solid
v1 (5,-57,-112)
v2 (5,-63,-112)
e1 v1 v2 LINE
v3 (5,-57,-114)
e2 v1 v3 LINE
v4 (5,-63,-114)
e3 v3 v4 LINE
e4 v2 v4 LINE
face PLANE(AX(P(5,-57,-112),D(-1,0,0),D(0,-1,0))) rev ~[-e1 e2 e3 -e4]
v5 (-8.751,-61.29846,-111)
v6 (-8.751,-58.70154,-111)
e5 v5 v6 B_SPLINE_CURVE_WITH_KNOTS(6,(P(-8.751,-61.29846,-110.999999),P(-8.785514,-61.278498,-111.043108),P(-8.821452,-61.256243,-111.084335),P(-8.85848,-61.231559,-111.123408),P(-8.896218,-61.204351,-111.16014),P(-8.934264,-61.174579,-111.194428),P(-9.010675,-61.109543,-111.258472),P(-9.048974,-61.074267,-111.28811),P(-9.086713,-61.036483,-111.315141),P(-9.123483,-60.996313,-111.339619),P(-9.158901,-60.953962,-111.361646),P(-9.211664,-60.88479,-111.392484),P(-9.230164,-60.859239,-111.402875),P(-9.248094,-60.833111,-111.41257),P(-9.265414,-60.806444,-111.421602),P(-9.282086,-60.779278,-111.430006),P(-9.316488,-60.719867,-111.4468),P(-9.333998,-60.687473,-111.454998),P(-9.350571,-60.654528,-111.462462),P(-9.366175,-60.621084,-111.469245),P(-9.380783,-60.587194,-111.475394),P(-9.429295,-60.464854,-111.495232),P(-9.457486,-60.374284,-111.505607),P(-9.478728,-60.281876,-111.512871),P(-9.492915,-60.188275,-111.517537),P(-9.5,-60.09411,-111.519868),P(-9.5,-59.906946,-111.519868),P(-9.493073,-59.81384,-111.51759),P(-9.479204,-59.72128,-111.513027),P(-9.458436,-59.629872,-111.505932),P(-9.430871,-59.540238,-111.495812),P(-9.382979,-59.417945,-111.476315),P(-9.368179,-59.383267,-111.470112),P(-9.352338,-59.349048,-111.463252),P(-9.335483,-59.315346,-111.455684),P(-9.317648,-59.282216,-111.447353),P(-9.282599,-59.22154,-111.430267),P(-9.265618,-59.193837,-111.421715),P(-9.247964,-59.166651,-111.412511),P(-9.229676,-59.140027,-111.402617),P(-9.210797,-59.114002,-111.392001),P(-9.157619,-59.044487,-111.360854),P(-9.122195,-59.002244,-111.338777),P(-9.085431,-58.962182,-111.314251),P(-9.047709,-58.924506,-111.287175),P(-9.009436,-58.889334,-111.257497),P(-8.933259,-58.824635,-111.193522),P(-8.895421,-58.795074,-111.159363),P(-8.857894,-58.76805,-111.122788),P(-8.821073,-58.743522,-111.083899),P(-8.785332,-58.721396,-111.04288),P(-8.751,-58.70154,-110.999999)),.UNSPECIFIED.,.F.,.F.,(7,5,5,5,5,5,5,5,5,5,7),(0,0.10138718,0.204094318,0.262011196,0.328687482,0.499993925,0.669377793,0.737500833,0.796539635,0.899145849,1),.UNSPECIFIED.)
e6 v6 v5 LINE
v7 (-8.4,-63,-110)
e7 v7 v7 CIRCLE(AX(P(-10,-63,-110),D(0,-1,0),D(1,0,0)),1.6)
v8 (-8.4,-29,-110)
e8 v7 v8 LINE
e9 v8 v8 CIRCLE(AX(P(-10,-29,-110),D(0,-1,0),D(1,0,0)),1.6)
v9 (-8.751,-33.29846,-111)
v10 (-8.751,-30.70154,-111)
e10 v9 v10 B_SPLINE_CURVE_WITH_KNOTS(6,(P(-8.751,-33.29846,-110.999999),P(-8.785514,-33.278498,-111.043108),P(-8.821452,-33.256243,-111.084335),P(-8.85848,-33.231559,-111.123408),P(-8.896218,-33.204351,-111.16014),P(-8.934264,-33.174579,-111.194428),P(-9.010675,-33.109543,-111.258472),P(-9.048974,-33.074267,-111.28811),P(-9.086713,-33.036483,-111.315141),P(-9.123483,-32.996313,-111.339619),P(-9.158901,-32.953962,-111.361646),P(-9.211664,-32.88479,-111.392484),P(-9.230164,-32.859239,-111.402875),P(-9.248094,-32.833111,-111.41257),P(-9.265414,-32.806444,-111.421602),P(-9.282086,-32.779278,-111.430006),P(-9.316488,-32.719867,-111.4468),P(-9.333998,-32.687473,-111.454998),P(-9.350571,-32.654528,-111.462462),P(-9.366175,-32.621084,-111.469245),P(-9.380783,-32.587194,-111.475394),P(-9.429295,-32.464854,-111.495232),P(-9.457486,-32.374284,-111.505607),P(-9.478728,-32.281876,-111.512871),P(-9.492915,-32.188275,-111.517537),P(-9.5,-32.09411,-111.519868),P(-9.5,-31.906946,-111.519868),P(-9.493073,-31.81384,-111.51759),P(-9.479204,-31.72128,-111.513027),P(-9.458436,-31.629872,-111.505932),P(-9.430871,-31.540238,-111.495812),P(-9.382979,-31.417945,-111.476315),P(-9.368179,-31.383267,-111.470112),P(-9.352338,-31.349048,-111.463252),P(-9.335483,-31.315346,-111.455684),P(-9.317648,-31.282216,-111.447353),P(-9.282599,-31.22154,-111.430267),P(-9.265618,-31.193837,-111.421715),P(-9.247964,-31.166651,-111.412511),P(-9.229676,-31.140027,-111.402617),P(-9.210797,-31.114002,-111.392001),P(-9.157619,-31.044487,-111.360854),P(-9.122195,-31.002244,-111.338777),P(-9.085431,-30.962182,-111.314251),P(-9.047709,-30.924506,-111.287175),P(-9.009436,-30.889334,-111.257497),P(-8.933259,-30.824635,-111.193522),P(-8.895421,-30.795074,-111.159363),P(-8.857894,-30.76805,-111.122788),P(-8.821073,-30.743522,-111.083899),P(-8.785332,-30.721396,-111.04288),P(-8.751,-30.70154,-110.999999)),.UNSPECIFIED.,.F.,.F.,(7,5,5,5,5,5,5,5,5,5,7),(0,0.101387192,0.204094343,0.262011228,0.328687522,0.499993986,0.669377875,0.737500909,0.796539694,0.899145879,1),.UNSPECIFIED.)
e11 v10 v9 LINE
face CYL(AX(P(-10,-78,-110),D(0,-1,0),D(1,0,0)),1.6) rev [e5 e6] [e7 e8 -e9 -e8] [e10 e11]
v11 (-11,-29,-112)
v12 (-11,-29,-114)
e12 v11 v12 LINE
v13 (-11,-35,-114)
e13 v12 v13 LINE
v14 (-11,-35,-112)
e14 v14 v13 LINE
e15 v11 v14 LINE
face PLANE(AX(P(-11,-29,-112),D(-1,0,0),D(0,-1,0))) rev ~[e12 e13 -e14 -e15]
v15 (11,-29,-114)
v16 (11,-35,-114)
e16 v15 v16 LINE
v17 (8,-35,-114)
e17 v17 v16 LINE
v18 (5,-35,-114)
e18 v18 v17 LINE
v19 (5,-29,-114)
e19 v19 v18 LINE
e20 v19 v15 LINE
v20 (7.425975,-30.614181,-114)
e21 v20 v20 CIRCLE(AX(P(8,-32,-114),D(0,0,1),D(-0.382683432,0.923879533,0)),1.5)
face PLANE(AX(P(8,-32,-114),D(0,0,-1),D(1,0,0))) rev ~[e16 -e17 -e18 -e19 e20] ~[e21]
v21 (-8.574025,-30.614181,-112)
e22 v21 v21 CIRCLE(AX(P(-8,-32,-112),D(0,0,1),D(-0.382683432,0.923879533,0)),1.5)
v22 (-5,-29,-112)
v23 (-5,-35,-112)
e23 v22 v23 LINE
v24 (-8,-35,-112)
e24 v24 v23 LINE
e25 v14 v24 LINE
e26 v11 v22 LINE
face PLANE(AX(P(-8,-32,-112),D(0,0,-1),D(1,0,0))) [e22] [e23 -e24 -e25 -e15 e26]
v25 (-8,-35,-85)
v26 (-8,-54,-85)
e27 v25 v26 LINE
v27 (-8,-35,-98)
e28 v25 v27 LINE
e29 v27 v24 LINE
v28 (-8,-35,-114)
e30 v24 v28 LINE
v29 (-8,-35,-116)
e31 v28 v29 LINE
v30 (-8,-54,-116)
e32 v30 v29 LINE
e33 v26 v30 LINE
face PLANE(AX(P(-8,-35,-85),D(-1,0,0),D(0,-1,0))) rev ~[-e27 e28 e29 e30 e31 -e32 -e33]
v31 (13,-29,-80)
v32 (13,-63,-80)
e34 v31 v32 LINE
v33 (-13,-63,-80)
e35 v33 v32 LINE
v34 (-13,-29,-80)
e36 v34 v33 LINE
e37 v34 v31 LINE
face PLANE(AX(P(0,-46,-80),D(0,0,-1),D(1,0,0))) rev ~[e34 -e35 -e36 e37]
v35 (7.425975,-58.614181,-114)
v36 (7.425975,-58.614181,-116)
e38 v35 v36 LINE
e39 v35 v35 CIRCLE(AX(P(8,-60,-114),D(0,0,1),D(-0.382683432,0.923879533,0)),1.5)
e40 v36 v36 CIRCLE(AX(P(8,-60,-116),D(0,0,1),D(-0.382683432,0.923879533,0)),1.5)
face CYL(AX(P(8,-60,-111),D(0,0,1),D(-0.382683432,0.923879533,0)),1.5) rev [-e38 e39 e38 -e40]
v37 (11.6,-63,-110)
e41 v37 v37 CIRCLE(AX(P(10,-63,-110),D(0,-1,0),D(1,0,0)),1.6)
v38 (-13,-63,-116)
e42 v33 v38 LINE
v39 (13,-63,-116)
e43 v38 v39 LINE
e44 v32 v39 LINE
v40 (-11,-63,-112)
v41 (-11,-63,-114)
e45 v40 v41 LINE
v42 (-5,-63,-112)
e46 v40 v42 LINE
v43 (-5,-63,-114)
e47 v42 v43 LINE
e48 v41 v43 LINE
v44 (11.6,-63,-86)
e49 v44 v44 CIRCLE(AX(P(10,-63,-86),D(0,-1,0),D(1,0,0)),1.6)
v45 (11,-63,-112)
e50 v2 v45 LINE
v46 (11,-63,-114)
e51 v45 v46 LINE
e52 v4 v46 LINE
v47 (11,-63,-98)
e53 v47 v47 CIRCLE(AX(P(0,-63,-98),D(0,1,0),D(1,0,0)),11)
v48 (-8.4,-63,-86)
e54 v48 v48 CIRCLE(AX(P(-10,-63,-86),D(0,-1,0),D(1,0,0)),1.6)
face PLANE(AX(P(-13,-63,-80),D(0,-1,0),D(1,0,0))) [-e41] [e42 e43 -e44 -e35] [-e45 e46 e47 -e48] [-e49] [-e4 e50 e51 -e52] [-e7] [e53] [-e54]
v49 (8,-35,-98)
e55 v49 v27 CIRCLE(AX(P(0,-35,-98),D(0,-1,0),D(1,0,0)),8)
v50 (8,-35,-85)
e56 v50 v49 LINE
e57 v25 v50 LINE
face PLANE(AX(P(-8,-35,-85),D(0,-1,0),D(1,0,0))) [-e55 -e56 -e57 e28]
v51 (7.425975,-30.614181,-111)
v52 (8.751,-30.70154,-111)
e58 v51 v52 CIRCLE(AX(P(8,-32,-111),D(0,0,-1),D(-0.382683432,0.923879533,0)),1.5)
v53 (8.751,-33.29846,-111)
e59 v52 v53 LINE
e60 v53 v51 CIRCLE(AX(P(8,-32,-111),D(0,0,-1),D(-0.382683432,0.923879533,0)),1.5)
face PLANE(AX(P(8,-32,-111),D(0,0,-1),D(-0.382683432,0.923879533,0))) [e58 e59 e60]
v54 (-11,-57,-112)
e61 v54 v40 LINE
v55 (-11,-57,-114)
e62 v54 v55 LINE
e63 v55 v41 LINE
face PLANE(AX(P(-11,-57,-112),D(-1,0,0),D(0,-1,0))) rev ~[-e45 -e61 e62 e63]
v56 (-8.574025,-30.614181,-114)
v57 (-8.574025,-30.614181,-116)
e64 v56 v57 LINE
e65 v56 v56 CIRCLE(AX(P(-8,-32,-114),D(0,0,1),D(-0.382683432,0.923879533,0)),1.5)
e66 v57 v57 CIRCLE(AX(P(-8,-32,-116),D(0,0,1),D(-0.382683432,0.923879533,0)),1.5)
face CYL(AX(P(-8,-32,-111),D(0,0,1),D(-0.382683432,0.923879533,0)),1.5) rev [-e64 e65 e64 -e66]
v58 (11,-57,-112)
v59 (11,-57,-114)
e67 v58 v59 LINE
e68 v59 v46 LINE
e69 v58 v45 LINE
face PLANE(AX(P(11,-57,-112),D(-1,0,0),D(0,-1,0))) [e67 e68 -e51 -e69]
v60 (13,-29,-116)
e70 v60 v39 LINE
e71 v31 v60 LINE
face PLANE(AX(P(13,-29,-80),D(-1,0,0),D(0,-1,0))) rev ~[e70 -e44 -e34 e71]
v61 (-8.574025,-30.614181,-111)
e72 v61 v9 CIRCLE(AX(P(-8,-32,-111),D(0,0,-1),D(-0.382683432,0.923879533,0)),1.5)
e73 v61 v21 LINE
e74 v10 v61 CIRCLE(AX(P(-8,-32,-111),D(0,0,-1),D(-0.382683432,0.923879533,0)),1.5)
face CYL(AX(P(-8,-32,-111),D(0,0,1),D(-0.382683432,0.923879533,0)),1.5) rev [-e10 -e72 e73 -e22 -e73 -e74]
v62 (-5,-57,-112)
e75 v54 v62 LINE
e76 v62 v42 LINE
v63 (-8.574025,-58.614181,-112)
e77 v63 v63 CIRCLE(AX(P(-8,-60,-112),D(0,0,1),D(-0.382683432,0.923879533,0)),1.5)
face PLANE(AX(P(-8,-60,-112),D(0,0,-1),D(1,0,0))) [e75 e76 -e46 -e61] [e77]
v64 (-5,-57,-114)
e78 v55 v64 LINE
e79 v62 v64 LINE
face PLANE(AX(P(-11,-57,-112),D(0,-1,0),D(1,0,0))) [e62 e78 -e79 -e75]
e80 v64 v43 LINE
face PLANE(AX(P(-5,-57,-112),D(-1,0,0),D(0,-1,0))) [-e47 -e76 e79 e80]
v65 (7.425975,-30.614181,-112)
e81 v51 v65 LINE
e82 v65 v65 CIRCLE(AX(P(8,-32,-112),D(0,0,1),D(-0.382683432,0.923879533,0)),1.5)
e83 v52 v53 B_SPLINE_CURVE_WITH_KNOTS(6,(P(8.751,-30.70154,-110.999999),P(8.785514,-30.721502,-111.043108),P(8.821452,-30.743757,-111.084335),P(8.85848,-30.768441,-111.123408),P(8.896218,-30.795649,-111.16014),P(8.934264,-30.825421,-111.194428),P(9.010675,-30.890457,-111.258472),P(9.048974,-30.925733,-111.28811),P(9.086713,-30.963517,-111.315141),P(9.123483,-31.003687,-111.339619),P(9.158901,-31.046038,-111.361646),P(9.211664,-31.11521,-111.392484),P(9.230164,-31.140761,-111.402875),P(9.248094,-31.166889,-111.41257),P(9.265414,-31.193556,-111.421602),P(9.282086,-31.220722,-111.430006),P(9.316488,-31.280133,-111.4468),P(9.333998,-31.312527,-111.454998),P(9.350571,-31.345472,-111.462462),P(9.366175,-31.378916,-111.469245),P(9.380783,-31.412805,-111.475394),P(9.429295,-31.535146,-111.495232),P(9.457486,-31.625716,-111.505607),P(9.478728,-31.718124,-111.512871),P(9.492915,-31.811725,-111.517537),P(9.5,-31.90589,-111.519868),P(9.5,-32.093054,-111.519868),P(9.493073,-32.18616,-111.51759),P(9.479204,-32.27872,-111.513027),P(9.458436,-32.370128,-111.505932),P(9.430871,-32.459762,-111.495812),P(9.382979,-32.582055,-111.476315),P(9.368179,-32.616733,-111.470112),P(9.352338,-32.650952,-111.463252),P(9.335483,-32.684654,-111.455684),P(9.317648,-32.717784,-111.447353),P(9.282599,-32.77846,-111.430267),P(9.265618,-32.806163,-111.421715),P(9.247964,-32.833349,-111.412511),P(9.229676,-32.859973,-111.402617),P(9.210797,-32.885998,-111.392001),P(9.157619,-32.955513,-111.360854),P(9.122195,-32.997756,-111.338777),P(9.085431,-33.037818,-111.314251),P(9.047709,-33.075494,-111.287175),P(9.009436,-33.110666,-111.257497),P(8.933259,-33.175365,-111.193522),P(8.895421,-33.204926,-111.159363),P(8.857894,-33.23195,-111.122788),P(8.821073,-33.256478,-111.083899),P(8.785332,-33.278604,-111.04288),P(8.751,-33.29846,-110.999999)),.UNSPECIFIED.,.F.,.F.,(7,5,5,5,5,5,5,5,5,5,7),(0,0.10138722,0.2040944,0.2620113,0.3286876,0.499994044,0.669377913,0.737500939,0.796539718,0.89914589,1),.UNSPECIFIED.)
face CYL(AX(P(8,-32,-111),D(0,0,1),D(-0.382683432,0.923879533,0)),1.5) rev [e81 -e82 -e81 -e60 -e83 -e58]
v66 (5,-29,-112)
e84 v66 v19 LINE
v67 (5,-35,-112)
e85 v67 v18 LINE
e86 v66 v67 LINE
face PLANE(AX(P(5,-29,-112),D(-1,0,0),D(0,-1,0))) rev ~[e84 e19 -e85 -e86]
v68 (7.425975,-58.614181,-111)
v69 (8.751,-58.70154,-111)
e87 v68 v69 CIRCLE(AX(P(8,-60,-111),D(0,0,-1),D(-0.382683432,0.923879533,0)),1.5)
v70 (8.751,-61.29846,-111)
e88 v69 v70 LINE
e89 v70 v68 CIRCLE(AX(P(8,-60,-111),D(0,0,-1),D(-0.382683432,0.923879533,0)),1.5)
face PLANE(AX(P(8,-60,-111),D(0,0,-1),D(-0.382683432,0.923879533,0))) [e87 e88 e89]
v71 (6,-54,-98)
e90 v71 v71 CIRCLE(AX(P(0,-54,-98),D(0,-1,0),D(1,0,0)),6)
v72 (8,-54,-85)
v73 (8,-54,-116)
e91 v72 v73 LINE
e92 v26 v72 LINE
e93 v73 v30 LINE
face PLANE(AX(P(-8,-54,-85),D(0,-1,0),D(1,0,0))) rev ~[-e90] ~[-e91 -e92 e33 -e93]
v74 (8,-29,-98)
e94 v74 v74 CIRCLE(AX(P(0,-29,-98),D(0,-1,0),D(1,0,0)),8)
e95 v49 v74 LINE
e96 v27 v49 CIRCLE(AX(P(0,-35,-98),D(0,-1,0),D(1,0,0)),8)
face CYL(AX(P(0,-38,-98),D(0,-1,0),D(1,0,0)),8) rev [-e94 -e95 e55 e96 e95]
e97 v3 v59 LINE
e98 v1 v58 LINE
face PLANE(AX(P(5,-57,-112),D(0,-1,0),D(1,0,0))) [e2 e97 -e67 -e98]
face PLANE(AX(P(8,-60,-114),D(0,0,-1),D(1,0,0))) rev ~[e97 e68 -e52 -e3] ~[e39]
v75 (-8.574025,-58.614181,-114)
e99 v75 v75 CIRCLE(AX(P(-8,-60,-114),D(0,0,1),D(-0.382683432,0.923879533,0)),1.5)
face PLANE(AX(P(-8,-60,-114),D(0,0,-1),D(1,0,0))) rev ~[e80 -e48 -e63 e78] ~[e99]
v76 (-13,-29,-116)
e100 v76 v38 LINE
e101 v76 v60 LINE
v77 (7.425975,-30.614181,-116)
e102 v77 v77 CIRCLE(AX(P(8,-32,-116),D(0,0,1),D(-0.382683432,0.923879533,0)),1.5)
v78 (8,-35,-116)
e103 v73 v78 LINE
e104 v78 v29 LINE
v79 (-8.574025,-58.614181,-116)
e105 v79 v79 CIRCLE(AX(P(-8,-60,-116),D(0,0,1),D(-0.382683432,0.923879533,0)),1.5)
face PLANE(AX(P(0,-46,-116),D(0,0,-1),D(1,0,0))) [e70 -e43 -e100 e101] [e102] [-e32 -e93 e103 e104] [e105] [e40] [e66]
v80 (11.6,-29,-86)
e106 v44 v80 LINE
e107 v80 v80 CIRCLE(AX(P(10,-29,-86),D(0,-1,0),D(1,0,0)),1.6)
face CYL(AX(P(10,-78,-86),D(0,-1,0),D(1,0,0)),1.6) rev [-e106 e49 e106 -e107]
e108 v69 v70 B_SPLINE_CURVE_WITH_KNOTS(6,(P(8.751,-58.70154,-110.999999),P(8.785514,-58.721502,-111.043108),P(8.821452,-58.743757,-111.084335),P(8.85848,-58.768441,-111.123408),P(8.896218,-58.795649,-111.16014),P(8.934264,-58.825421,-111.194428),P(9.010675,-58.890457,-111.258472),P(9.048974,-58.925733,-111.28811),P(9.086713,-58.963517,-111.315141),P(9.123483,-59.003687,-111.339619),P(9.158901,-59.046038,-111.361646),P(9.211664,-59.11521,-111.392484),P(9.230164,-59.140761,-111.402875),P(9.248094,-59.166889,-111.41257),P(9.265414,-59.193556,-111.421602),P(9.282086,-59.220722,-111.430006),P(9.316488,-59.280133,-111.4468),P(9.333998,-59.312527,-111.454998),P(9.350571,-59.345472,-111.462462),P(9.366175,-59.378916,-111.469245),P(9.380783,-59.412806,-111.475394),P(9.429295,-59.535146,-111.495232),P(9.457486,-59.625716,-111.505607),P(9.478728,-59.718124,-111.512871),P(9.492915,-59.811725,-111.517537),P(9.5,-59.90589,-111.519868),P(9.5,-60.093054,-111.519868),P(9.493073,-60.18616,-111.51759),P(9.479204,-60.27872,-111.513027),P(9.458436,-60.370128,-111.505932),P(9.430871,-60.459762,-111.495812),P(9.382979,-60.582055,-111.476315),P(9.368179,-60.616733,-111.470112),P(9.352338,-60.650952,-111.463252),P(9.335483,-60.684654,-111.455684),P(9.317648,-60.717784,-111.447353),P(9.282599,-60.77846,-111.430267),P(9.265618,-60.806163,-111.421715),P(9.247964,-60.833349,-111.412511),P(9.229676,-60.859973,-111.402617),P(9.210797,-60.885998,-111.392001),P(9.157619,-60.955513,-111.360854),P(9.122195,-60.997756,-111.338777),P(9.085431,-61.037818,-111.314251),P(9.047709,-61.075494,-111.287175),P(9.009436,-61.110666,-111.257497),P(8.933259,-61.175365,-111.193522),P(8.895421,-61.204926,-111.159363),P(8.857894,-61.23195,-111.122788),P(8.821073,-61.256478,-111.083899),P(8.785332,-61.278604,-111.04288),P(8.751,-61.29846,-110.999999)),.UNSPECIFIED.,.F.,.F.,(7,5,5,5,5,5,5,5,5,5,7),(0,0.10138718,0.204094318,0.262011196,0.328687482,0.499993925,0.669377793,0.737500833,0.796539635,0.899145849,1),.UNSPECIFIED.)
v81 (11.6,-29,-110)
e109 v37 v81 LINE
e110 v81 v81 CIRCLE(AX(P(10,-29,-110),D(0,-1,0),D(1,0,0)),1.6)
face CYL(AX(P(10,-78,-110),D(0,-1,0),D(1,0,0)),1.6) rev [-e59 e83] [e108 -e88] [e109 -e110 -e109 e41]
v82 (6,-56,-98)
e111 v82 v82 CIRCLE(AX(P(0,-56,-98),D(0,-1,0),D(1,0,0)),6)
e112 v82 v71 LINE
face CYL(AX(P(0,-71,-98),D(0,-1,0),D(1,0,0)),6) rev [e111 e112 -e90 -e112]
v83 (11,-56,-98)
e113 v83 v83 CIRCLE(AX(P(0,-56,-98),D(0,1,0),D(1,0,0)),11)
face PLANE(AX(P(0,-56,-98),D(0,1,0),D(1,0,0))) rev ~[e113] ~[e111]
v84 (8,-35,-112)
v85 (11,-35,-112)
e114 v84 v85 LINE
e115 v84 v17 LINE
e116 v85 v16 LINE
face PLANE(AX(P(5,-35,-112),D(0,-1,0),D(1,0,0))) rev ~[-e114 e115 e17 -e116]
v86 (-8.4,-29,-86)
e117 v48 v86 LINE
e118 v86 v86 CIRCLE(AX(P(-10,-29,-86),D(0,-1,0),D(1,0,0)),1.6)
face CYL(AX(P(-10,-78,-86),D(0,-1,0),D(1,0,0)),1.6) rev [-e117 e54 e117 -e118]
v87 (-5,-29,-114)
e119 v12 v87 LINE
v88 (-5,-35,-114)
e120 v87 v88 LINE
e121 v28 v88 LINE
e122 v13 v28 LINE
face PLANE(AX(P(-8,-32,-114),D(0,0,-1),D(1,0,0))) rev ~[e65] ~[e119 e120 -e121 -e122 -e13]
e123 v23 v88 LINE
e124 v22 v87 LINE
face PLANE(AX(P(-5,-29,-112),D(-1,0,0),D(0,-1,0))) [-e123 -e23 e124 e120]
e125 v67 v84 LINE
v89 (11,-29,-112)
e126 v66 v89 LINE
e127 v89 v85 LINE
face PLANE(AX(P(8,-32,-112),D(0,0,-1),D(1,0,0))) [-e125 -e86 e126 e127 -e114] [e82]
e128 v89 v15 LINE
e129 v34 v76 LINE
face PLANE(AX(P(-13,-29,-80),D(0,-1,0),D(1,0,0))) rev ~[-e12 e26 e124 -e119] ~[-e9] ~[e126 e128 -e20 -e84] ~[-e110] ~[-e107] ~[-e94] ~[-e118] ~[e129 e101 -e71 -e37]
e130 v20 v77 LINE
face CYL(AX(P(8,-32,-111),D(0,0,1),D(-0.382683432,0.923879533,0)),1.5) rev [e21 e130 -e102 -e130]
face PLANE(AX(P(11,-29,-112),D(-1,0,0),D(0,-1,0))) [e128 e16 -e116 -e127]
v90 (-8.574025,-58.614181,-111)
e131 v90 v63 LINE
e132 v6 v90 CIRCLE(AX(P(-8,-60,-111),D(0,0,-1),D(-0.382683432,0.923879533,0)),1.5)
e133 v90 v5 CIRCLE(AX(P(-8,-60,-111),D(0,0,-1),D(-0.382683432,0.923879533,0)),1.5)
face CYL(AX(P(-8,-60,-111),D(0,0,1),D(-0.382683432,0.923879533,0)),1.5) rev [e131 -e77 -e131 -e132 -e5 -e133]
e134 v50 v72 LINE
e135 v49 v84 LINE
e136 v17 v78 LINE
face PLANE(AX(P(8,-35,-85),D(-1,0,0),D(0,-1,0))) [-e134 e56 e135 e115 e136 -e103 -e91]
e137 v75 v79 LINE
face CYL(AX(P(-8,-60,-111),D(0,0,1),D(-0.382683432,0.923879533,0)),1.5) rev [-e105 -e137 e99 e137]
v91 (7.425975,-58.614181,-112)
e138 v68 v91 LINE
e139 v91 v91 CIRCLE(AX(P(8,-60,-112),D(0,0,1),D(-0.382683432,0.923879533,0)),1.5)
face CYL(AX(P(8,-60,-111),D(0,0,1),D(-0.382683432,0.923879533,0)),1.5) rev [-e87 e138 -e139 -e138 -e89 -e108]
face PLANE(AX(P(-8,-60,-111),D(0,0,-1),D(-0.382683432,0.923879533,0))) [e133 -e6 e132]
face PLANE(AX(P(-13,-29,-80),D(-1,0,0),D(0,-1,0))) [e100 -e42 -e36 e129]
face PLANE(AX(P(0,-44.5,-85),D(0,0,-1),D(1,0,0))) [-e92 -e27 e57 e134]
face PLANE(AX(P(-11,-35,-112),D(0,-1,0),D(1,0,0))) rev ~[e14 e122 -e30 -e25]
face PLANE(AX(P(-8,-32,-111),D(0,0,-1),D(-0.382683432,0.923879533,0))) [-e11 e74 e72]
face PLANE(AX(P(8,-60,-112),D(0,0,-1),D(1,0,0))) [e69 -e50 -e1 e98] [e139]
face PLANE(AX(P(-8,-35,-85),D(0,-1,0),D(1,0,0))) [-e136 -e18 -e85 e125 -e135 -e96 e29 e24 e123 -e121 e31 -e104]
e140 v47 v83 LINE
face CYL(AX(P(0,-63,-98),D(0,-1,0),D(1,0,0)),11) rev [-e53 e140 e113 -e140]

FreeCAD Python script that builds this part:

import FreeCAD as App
import Part
import Sketcher
from FreeCAD import Vector

doc = App.newDocument("Part")
body = doc.addObject("PartDesign::Body", "Body")

# Sketch on XY plane
sketch1 = doc.addObject("Sketcher::SketchObject", "Sketch")
body.addObject(sketch1)
sketch1.AttachmentSupport = (doc.XY_Plane, [""])
sketch1.MapMode = "FlatFace"
sketch1.addGeometry(Part.Circle(Vector(0, 0, 0), Vector(0, 0, 1), 1.5), False)
sketch1.addConstraint(Sketcher.Constraint("Coincident", 0, 3, -1, 1))
sketch1.addConstraint(Sketcher.Constraint("Diameter", 0, 3.0))
pad1 = doc.addObject("PartDesign::Pad", "Pad")
body.addObject(pad1)
pad1.Profile = sketch1
pad1.Length = 20
body2 = doc.addObject("PartDesign::Body", "Body001")
doc.recompute()

body.Placement = App.Placement(Vector(-8, 34, 51), App.Rotation(Vector(0, 0, 1), 247.5))
boolean = doc.addObject("PartDesign::Boolean", "Boolean")
body2.addObject(boolean)
boolean.Type = "Fuse"
boolean.addObjects([body])
body3 = doc.addObject("PartDesign::Body", "Body002")

# Sketch on XY plane
sketch2 = doc.addObject("Sketcher::SketchObject", "Sketch001")
body3.addObject(sketch2)
sketch2.AttachmentSupport = (doc.getObject("XY_Plane002"), [""])
sketch2.MapMode = "FlatFace"
sketch2.addGeometry(Part.Circle(Vector(0, 0, 0), Vector(0, 0, 1), 1.5), False)
sketch2.addConstraint(Sketcher.Constraint("Coincident", 0, 3, -1, 1))
sketch2.addConstraint(Sketcher.Constraint("Diameter", 0, 3.0))
pad2 = doc.addObject("PartDesign::Pad", "Pad001")
body3.addObject(pad2)
pad2.Profile = sketch2
pad2.Length = 20
body4 = doc.addObject("PartDesign::Body", "Body003")
doc.recompute()

body3.Placement = App.Placement(Vector(8, 62, 51), App.Rotation(Vector(0, 0, -1), 112.5))
boolean2 = doc.addObject("PartDesign::Boolean", "Boolean001")
body4.addObject(boolean2)
boolean2.Type = "Fuse"
boolean2.addObjects([body3])
body5 = doc.addObject("PartDesign::Body", "Body004")

# Sketch on XY plane
sketch3 = doc.addObject("Sketcher::SketchObject", "Sketch002")
body5.addObject(sketch3)
sketch3.AttachmentSupport = (doc.getObject("XY_Plane004"), [""])
sketch3.MapMode = "FlatFace"
sketch3.addGeometry(Part.Circle(Vector(0, 0, 0), Vector(0, 0, 1), 1.5), False)
sketch3.addConstraint(Sketcher.Constraint("Coincident", 0, 3, -1, 1))
sketch3.addConstraint(Sketcher.Constraint("Diameter", 0, 3.0))
pad3 = doc.addObject("PartDesign::Pad", "Pad002")
body5.addObject(pad3)
pad3.Profile = sketch3
pad3.Length = 20
body6 = doc.addObject("PartDesign::Body", "Body005")
doc.recompute()

body5.Placement = App.Placement(Vector(-8, 62, 51), App.Rotation(Vector(0, 0, -1), 112.5))
boolean3 = doc.addObject("PartDesign::Boolean", "Boolean002")
body6.addObject(boolean3)
boolean3.Type = "Fuse"
boolean3.addObjects([body5])
body7 = doc.addObject("PartDesign::Body", "Body006")

# Sketch on XY plane
sketch4 = doc.addObject("Sketcher::SketchObject", "Sketch003")
body7.addObject(sketch4)
sketch4.AttachmentSupport = (doc.getObject("XY_Plane006"), [""])
sketch4.MapMode = "FlatFace"
sketch4.addGeometry(Part.Circle(Vector(0, 0, 0), Vector(0, 0, 1), 1.5), False)
sketch4.addConstraint(Sketcher.Constraint("Coincident", 0, 3, -1, 1))
sketch4.addConstraint(Sketcher.Constraint("Diameter", 0, 3.0))
pad4 = doc.addObject("PartDesign::Pad", "Pad003")
body7.addObject(pad4)
pad4.Profile = sketch4
pad4.Length = 20
body8 = doc.addObject("PartDesign::Body", "Body007")
body8.AllowCompound = True
doc.recompute()

body7.Placement = App.Placement(Vector(8, 34, 51), App.Rotation(Vector(0, 0, 1), 247.5))
boolean4 = doc.addObject("PartDesign::Boolean", "Boolean003")
body8.addObject(boolean4)
boolean4.Type = "Fuse"
boolean4.addObjects([body7])
doc.recompute()

boolean5 = doc.addObject("PartDesign::Boolean", "Boolean004")
body8.addObject(boolean5)
boolean5.Type = "Fuse"
boolean5.addObjects([body2])
doc.recompute()

boolean6 = doc.addObject("PartDesign::Boolean", "Boolean005")
body8.addObject(boolean6)
boolean6.Type = "Fuse"
boolean6.addObjects([body4])
doc.recompute()

boolean7 = doc.addObject("PartDesign::Boolean", "Boolean006")
body8.addObject(boolean7)
boolean7.Type = "Fuse"
boolean7.addObjects([body6])
body9 = doc.addObject("PartDesign::Body", "Body008")
body9.AllowCompound = True
doc.recompute()

body8.Placement = App.Placement(Vector(0, 0, 5), App.Rotation(Vector(0, 0, 1), 0))
boolean8 = doc.addObject("PartDesign::Boolean", "Boolean007")
body9.addObject(boolean8)
boolean8.Type = "Fuse"
boolean8.addObjects([body8])
body10 = doc.addObject("PartDesign::Body", "Body009")

# Sketch on XY plane
sketch5 = doc.addObject("Sketcher::SketchObject", "Sketch004")
body10.addObject(sketch5)
sketch5.AttachmentSupport = (doc.getObject("XY_Plane009"), [""])
sketch5.MapMode = "FlatFace"
sketch5.AttachmentOffset = App.Placement(Vector(0, 0, 53), App.Rotation())
sketch5.addGeometry(Part.LineSegment(Vector(5, 65, 0), Vector(5, 59, 0)), False)
sketch5.addGeometry(Part.LineSegment(Vector(5, 59, 0), Vector(11, 59, 0)), False)
sketch5.addGeometry(Part.LineSegment(Vector(11, 59, 0), Vector(11, 65, 0)), False)
sketch5.addGeometry(Part.LineSegment(Vector(11, 65, 0), Vector(5, 65, 0)), False)
sketch5.addConstraint(Sketcher.Constraint("Coincident", 0, 2, 1, 1))
sketch5.addConstraint(Sketcher.Constraint("Coincident", 1, 2, 2, 1))
sketch5.addConstraint(Sketcher.Constraint("Coincident", 2, 2, 3, 1))
sketch5.addConstraint(Sketcher.Constraint("Coincident", 3, 2, 0, 1))
sketch5.addConstraint(Sketcher.Constraint("Vertical", 0))
sketch5.addConstraint(Sketcher.Constraint("Horizontal", 1))
sketch5.addConstraint(Sketcher.Constraint("Vertical", 2))
sketch5.addConstraint(Sketcher.Constraint("Horizontal", 3))
sketch5.addConstraint(Sketcher.Constraint("Equal", 3, 0))
sketch5.addConstraint(Sketcher.Constraint("DistanceX", 1, 1, 1, 2, 6.0))
sketch5.addConstraint(Sketcher.Constraint("DistanceX", -1, 1, 0, 2, 5.0))
sketch5.addConstraint(Sketcher.Constraint("DistanceY", -1, 1, 0, 2, 59.0))
pad5 = doc.addObject("PartDesign::Pad", "Pad004")
body10.addObject(pad5)
pad5.Profile = sketch5
pad5.Length = 2
body11 = doc.addObject("PartDesign::Body", "Body010")

# Sketch on XY plane
sketch6 = doc.addObject("Sketcher::SketchObject", "Sketch005")
body11.addObject(sketch6)
sketch6.AttachmentSupport = (doc.getObject("XY_Plane010"), [""])
sketch6.MapMode = "FlatFace"
sketch6.AttachmentOffset = App.Placement(Vector(0, 0, 53), App.Rotation())
sketch6.addGeometry(Part.LineSegment(Vector(5, 37, 0), Vector(5, 31, 0)), False)
sketch6.addGeometry(Part.LineSegment(Vector(5, 31, 0), Vector(11, 31, 0)), False)
sketch6.addGeometry(Part.LineSegment(Vector(11, 31, 0), Vector(11, 37, 0)), False)
sketch6.addGeometry(Part.LineSegment(Vector(11, 37, 0), Vector(5, 37, 0)), False)
sketch6.addConstraint(Sketcher.Constraint("Coincident", 0, 2, 1, 1))
sketch6.addConstraint(Sketcher.Constraint("Coincident", 1, 2, 2, 1))
sketch6.addConstraint(Sketcher.Constraint("Coincident", 2, 2, 3, 1))
sketch6.addConstraint(Sketcher.Constraint("Coincident", 3, 2, 0, 1))
sketch6.addConstraint(Sketcher.Constraint("Vertical", 0))
sketch6.addConstraint(Sketcher.Constraint("Horizontal", 1))
sketch6.addConstraint(Sketcher.Constraint("Vertical", 2))
sketch6.addConstraint(Sketcher.Constraint("Horizontal", 3))
sketch6.addConstraint(Sketcher.Constraint("Equal", 3, 0))
sketch6.addConstraint(Sketcher.Constraint("DistanceX", 1, 1, 1, 2, 6.0))
sketch6.addConstraint(Sketcher.Constraint("DistanceX", -1, 1, 0, 2, 5.0))
sketch6.addConstraint(Sketcher.Constraint("DistanceY", -1, 1, 0, 2, 31.0))
pad6 = doc.addObject("PartDesign::Pad", "Pad005")
body11.addObject(pad6)
pad6.Profile = sketch6
pad6.Length = 2
body12 = doc.addObject("PartDesign::Body", "Body011")

# Sketch on XY plane
sketch7 = doc.addObject("Sketcher::SketchObject", "Sketch006")
body12.addObject(sketch7)
sketch7.AttachmentSupport = (doc.getObject("XY_Plane011"), [""])
sketch7.MapMode = "FlatFace"
sketch7.AttachmentOffset = App.Placement(Vector(0, 0, 53), App.Rotation())
sketch7.addGeometry(Part.LineSegment(Vector(-11, 37, 0), Vector(-11, 31, 0)), False)
sketch7.addGeometry(Part.LineSegment(Vector(-11, 31, 0), Vector(-5, 31, 0)), False)
sketch7.addGeometry(Part.LineSegment(Vector(-5, 31, 0), Vector(-5, 37, 0)), False)
sketch7.addGeometry(Part.LineSegment(Vector(-5, 37, 0), Vector(-11, 37, 0)), False)
sketch7.addConstraint(Sketcher.Constraint("Coincident", 0, 2, 1, 1))
sketch7.addConstraint(Sketcher.Constraint("Coincident", 1, 2, 2, 1))
sketch7.addConstraint(Sketcher.Constraint("Coincident", 2, 2, 3, 1))
sketch7.addConstraint(Sketcher.Constraint("Coincident", 3, 2, 0, 1))
sketch7.addConstraint(Sketcher.Constraint("Vertical", 0))
sketch7.addConstraint(Sketcher.Constraint("Horizontal", 1))
sketch7.addConstraint(Sketcher.Constraint("Vertical", 2))
sketch7.addConstraint(Sketcher.Constraint("Horizontal", 3))
sketch7.addConstraint(Sketcher.Constraint("Equal", 3, 0))
sketch7.addConstraint(Sketcher.Constraint("DistanceX", 1, 1, 1, 2, 6.0))
sketch7.addConstraint(Sketcher.Constraint("DistanceX", 0, 2, -1, 1, 11.0))
sketch7.addConstraint(Sketcher.Constraint("DistanceY", -1, 1, 0, 2, 31.0))
pad7 = doc.addObject("PartDesign::Pad", "Pad006")
body12.addObject(pad7)
pad7.Profile = sketch7
pad7.Length = 2
body13 = doc.addObject("PartDesign::Body", "Body012")
body13.AllowCompound = True

# Sketch on XY plane
sketch8 = doc.addObject("Sketcher::SketchObject", "Sketch007")
body13.addObject(sketch8)
sketch8.AttachmentSupport = (doc.getObject("XY_Plane012"), [""])
sketch8.MapMode = "FlatFace"
sketch8.AttachmentOffset = App.Placement(Vector(0, 0, 53), App.Rotation())
sketch8.addGeometry(Part.LineSegment(Vector(-11, 65, 0), Vector(-11, 59, 0)), False)
sketch8.addGeometry(Part.LineSegment(Vector(-11, 59, 0), Vector(-5, 59, 0)), False)
sketch8.addGeometry(Part.LineSegment(Vector(-5, 59, 0), Vector(-5, 65, 0)), False)
sketch8.addGeometry(Part.LineSegment(Vector(-5, 65, 0), Vector(-11, 65, 0)), False)
sketch8.addConstraint(Sketcher.Constraint("Coincident", 0, 2, 1, 1))
sketch8.addConstraint(Sketcher.Constraint("Coincident", 1, 2, 2, 1))
sketch8.addConstraint(Sketcher.Constraint("Coincident", 2, 2, 3, 1))
sketch8.addConstraint(Sketcher.Constraint("Coincident", 3, 2, 0, 1))
sketch8.addConstraint(Sketcher.Constraint("Vertical", 0))
sketch8.addConstraint(Sketcher.Constraint("Horizontal", 1))
sketch8.addConstraint(Sketcher.Constraint("Vertical", 2))
sketch8.addConstraint(Sketcher.Constraint("Horizontal", 3))
sketch8.addConstraint(Sketcher.Constraint("Equal", 3, 0))
sketch8.addConstraint(Sketcher.Constraint("DistanceX", 1, 1, 1, 2, 6.0))
sketch8.addConstraint(Sketcher.Constraint("DistanceX", 0, 2, -1, 1, 11.0))
sketch8.addConstraint(Sketcher.Constraint("DistanceY", -1, 1, 0, 2, 59.0))
pad8 = doc.addObject("PartDesign::Pad", "Pad007")
body13.addObject(pad8)
pad8.Profile = sketch8
pad8.Length = 2
doc.recompute()

boolean9 = doc.addObject("PartDesign::Boolean", "Boolean008")
body13.addObject(boolean9)
boolean9.Type = "Fuse"
boolean9.addObjects([body10])
doc.recompute()

boolean10 = doc.addObject("PartDesign::Boolean", "Boolean009")
body13.addObject(boolean10)
boolean10.Type = "Fuse"
boolean10.addObjects([body11])
doc.recompute()

boolean11 = doc.addObject("PartDesign::Boolean", "Boolean010")
body13.addObject(boolean11)
boolean11.Type = "Fuse"
boolean11.addObjects([body12])
body14 = doc.addObject("PartDesign::Body", "Body013")
body14.AllowCompound = True
doc.recompute()

body13.Placement = App.Placement(Vector(0, 0, 4), App.Rotation(Vector(0, 0, 1), 0))
boolean12 = doc.addObject("PartDesign::Boolean", "Boolean011")
body14.addObject(boolean12)
boolean12.Type = "Fuse"
boolean12.addObjects([body13])
body15 = doc.addObject("PartDesign::Body", "Body014")

# Sketch on XZ plane
sketch9 = doc.addObject("Sketcher::SketchObject", "Sketch008")
body15.addObject(sketch9)
sketch9.AttachmentSupport = (doc.getObject("XZ_Plane014"), [""])
sketch9.MapMode = "FlatFace"
sketch9.AttachmentOffset = App.Placement(Vector(0, 0, -80), App.Rotation())
sketch9.addGeometry(Part.Circle(Vector(-10, 31, 0), Vector(0, 0, 1), 3), False)
sketch9.addConstraint(Sketcher.Constraint("Diameter", 0, 6.0))
sketch9.addConstraint(Sketcher.Constraint("DistanceX", 0, 3, -1, 1, 10.0))
sketch9.addConstraint(Sketcher.Constraint("DistanceY", -1, 1, 0, 3, 31.0))
pad9 = doc.addObject("PartDesign::Pad", "Pad008")
body15.addObject(pad9)
pad9.Profile = sketch9
pad9.Length = 3
body16 = doc.addObject("PartDesign::Body", "Body015")

# Sketch on XZ plane
sketch10 = doc.addObject("Sketcher::SketchObject", "Sketch009")
body16.addObject(sketch10)
sketch10.AttachmentSupport = (doc.getObject("XZ_Plane015"), [""])
sketch10.MapMode = "FlatFace"
sketch10.AttachmentOffset = App.Placement(Vector(0, 0, -80), App.Rotation())
sketch10.addGeometry(Part.Circle(Vector(10, 55, 0), Vector(0, 0, 1), 3), False)
sketch10.addConstraint(Sketcher.Constraint("Diameter", 0, 6.0))
sketch10.addConstraint(Sketcher.Constraint("DistanceX", -1, 1, 0, 3, 10.0))
sketch10.addConstraint(Sketcher.Constraint("DistanceY", -1, 1, 0, 3, 55.0))
pad10 = doc.addObject("PartDesign::Pad", "Pad009")
body16.addObject(pad10)
pad10.Profile = sketch10
pad10.Length = 3
body17 = doc.addObject("PartDesign::Body", "Body016")

# Sketch on XZ plane
sketch11 = doc.addObject("Sketcher::SketchObject", "Sketch010")
body17.addObject(sketch11)
sketch11.AttachmentSupport = (doc.getObject("XZ_Plane016"), [""])
sketch11.MapMode = "FlatFace"
sketch11.AttachmentOffset = App.Placement(Vector(0, 0, -80), App.Rotation())
sketch11.addGeometry(Part.Circle(Vector(10, 31, 0), Vector(0, 0, 1), 3), False)
sketch11.addConstraint(Sketcher.Constraint("Diameter", 0, 6.0))
sketch11.addConstraint(Sketcher.Constraint("DistanceX", -1, 1, 0, 3, 10.0))
sketch11.addConstraint(Sketcher.Constraint("DistanceY", -1, 1, 0, 3, 31.0))
pad11 = doc.addObject("PartDesign::Pad", "Pad010")
body17.addObject(pad11)
pad11.Profile = sketch11
pad11.Length = 3
body18 = doc.addObject("PartDesign::Body", "Body017")
body18.AllowCompound = True

# Sketch on XZ plane
sketch12 = doc.addObject("Sketcher::SketchObject", "Sketch011")
body18.addObject(sketch12)
sketch12.AttachmentSupport = (doc.getObject("XZ_Plane017"), [""])
sketch12.MapMode = "FlatFace"
sketch12.AttachmentOffset = App.Placement(Vector(0, 0, -80), App.Rotation())
sketch12.addGeometry(Part.Circle(Vector(-10, 55, 0), Vector(0, 0, 1), 3), False)
sketch12.addConstraint(Sketcher.Constraint("Diameter", 0, 6.0))
sketch12.addConstraint(Sketcher.Constraint("DistanceX", 0, 3, -1, 1, 10.0))
sketch12.addConstraint(Sketcher.Constraint("DistanceY", -1, 1, 0, 3, 55.0))
pad12 = doc.addObject("PartDesign::Pad", "Pad011")
body18.addObject(pad12)
pad12.Profile = sketch12
pad12.Length = 3
doc.recompute()

boolean13 = doc.addObject("PartDesign::Boolean", "Boolean012")
body18.addObject(boolean13)
boolean13.Type = "Fuse"
boolean13.addObjects([body15])
doc.recompute()

boolean14 = doc.addObject("PartDesign::Boolean", "Boolean013")
body18.addObject(boolean14)
boolean14.Type = "Fuse"
boolean14.addObjects([body16])
doc.recompute()

boolean15 = doc.addObject("PartDesign::Boolean", "Boolean014")
body18.addObject(boolean15)
boolean15.Type = "Fuse"
boolean15.addObjects([body17])
body19 = doc.addObject("PartDesign::Body", "Body018")
body19.AllowCompound = True
doc.recompute()

body18.Placement = App.Placement(Vector(0, -8, 0), App.Rotation(Vector(0, 0, 1), 0))
boolean16 = doc.addObject("PartDesign::Boolean", "Boolean015")
body19.addObject(boolean16)
boolean16.Type = "Fuse"
boolean16.addObjects([body18])
body20 = doc.addObject("PartDesign::Body", "Body019")

# Sketch on XZ plane
sketch13 = doc.addObject("Sketcher::SketchObject", "Sketch012")
body20.addObject(sketch13)
sketch13.AttachmentSupport = (doc.getObject("XZ_Plane019"), [""])
sketch13.MapMode = "FlatFace"
sketch13.AttachmentOffset = App.Placement(Vector(0, 0, -80), App.Rotation())
sketch13.addGeometry(Part.Circle(Vector(-10, 31, 0), Vector(0, 0, 1), 1.6), False)
sketch13.addConstraint(Sketcher.Constraint("Diameter", 0, 3.2))
sketch13.addConstraint(Sketcher.Constraint("DistanceX", 0, 3, -1, 1, 10.0))
sketch13.addConstraint(Sketcher.Constraint("DistanceY", -1, 1, 0, 3, 31.0))
pad13 = doc.addObject("PartDesign::Pad", "Pad012")
body20.addObject(pad13)
pad13.Profile = sketch13
pad13.Length = 80
body21 = doc.addObject("PartDesign::Body", "Body020")

# Sketch on XZ plane
sketch14 = doc.addObject("Sketcher::SketchObject", "Sketch013")
body21.addObject(sketch14)
sketch14.AttachmentSupport = (doc.getObject("XZ_Plane020"), [""])
sketch14.MapMode = "FlatFace"
sketch14.AttachmentOffset = App.Placement(Vector(0, 0, -80), App.Rotation())
sketch14.addGeometry(Part.Circle(Vector(10, 55, 0), Vector(0, 0, 1), 1.6), False)
sketch14.addConstraint(Sketcher.Constraint("Diameter", 0, 3.2))
sketch14.addConstraint(Sketcher.Constraint("DistanceX", -1, 1, 0, 3, 10.0))
sketch14.addConstraint(Sketcher.Constraint("DistanceY", -1, 1, 0, 3, 55.0))
pad14 = doc.addObject("PartDesign::Pad", "Pad013")
body21.addObject(pad14)
pad14.Profile = sketch14
pad14.Length = 80
body22 = doc.addObject("PartDesign::Body", "Body021")

# Sketch on XZ plane
sketch15 = doc.addObject("Sketcher::SketchObject", "Sketch014")
body22.addObject(sketch15)
sketch15.AttachmentSupport = (doc.getObject("XZ_Plane021"), [""])
sketch15.MapMode = "FlatFace"
sketch15.AttachmentOffset = App.Placement(Vector(0, 0, -80), App.Rotation())
sketch15.addGeometry(Part.Circle(Vector(10, 31, 0), Vector(0, 0, 1), 1.6), False)
sketch15.addConstraint(Sketcher.Constraint("Diameter", 0, 3.2))
sketch15.addConstraint(Sketcher.Constraint("DistanceX", -1, 1, 0, 3, 10.0))
sketch15.addConstraint(Sketcher.Constraint("DistanceY", -1, 1, 0, 3, 31.0))
pad15 = doc.addObject("PartDesign::Pad", "Pad014")
body22.addObject(pad15)
pad15.Profile = sketch15
pad15.Length = 80
body23 = doc.addObject("PartDesign::Body", "Body022")
body23.AllowCompound = True

# Sketch on XZ plane
sketch16 = doc.addObject("Sketcher::SketchObject", "Sketch015")
body23.addObject(sketch16)
sketch16.AttachmentSupport = (doc.getObject("XZ_Plane022"), [""])
sketch16.MapMode = "FlatFace"
sketch16.AttachmentOffset = App.Placement(Vector(0, 0, -80), App.Rotation())
sketch16.addGeometry(Part.Circle(Vector(-10, 55, 0), Vector(0, 0, 1), 1.6), False)
sketch16.addConstraint(Sketcher.Constraint("Diameter", 0, 3.2))
sketch16.addConstraint(Sketcher.Constraint("DistanceX", 0, 3, -1, 1, 10.0))
sketch16.addConstraint(Sketcher.Constraint("DistanceY", -1, 1, 0, 3, 55.0))
pad16 = doc.addObject("PartDesign::Pad", "Pad015")
body23.addObject(pad16)
pad16.Profile = sketch16
pad16.Length = 80
doc.recompute()

boolean17 = doc.addObject("PartDesign::Boolean", "Boolean016")
body23.addObject(boolean17)
boolean17.Type = "Fuse"
boolean17.addObjects([body20])
doc.recompute()

boolean18 = doc.addObject("PartDesign::Boolean", "Boolean017")
body23.addObject(boolean18)
boolean18.Type = "Fuse"
boolean18.addObjects([body21])
doc.recompute()

boolean19 = doc.addObject("PartDesign::Boolean", "Boolean018")
body23.addObject(boolean19)
boolean19.Type = "Fuse"
boolean19.addObjects([body22])
body24 = doc.addObject("PartDesign::Body", "Body023")

# Sketch on XZ plane
sketch17 = doc.addObject("Sketcher::SketchObject", "Sketch016")
body24.addObject(sketch17)
sketch17.AttachmentSupport = (doc.getObject("XZ_Plane023"), [""])
sketch17.MapMode = "FlatFace"
sketch17.AttachmentOffset = App.Placement(Vector(0, 0, -73), App.Rotation())
sketch17.addGeometry(Part.Circle(Vector(0, 43, 0), Vector(0, 0, 1), 6), False)
sketch17.addConstraint(Sketcher.Constraint("PointOnObject", 0, 3, -2))
sketch17.addConstraint(Sketcher.Constraint("Diameter", 0, 12.0))
sketch17.addConstraint(Sketcher.Constraint("DistanceY", -1, 1, 0, 3, 43.0))
pad17 = doc.addObject("PartDesign::Pad", "Pad016")
body24.addObject(pad17)
pad17.Profile = sketch17
pad17.Length = 20
body25 = doc.addObject("PartDesign::Body", "Body024")

# Sketch on XZ plane
sketch18 = doc.addObject("Sketcher::SketchObject", "Sketch017")
body25.addObject(sketch18)
sketch18.AttachmentSupport = (doc.getObject("XZ_Plane024"), [""])
sketch18.MapMode = "FlatFace"
sketch18.AttachmentOffset = App.Placement(Vector(0, 0, -65), App.Rotation())
sketch18.addGeometry(Part.Circle(Vector(0, 43, 0), Vector(0, 0, 1), 11), False)
sketch18.addConstraint(Sketcher.Constraint("PointOnObject", 0, 3, -2))
sketch18.addConstraint(Sketcher.Constraint("Diameter", 0, 22.0))
sketch18.addConstraint(Sketcher.Constraint("DistanceY", -1, 1, 0, 3, 43.0))
pad18 = doc.addObject("PartDesign::Pad", "Pad017")
body25.addObject(pad18)
pad18.Profile = sketch18
pad18.Length = 7
body26 = doc.addObject("PartDesign::Body", "Body025")

# Sketch on XZ plane
sketch19 = doc.addObject("Sketcher::SketchObject", "Sketch018")
body26.addObject(sketch19)
sketch19.AttachmentSupport = (doc.getObject("XZ_Plane025"), [""])
sketch19.MapMode = "FlatFace"
sketch19.AttachmentOffset = App.Placement(Vector(0, 0, -40), App.Rotation())
sketch19.addGeometry(Part.Circle(Vector(0, 43, 0), Vector(0, 0, 1), 8), False)
sketch19.addConstraint(Sketcher.Constraint("PointOnObject", 0, 3, -2))
sketch19.addConstraint(Sketcher.Constraint("Diameter", 0, 16.0))
sketch19.addConstraint(Sketcher.Constraint("DistanceY", -1, 1, 0, 3, 43.0))
pad19 = doc.addObject("PartDesign::Pad", "Pad018")
body26.addObject(pad19)
pad19.Profile = sketch19
pad19.Length = 20
body27 = doc.addObject("PartDesign::Body", "Body026")

# Sketch on XY plane
sketch20 = doc.addObject("Sketcher::SketchObject", "Sketch019")
body27.addObject(sketch20)
sketch20.AttachmentSupport = (doc.getObject("XY_Plane026"), [""])
sketch20.MapMode = "FlatFace"
sketch20.AttachmentOffset = App.Placement(Vector(0, 0, 30), App.Rotation())
sketch20.addGeometry(Part.LineSegment(Vector(-8, 56, 0), Vector(-8, 37, 0)), False)
sketch20.addGeometry(Part.LineSegment(Vector(-8, 37, 0), Vector(8, 37, 0)), False)
sketch20.addGeometry(Part.LineSegment(Vector(8, 37, 0), Vector(8, 56, 0)), False)
sketch20.addGeometry(Part.LineSegment(Vector(8, 56, 0), Vector(-8, 56, 0)), False)
sketch20.addConstraint(Sketcher.Constraint("Coincident", 0, 2, 1, 1))
sketch20.addConstraint(Sketcher.Constraint("Coincident", 1, 2, 2, 1))
sketch20.addConstraint(Sketcher.Constraint("Coincident", 2, 2, 3, 1))
sketch20.addConstraint(Sketcher.Constraint("Coincident", 3, 2, 0, 1))
sketch20.addConstraint(Sketcher.Constraint("Vertical", 0))
sketch20.addConstraint(Sketcher.Constraint("Horizontal", 1))
sketch20.addConstraint(Sketcher.Constraint("Vertical", 2))
sketch20.addConstraint(Sketcher.Constraint("Horizontal", 3))
sketch20.addConstraint(Sketcher.Constraint("DistanceX", 1, 1, 1, 2, 16.0))
sketch20.addConstraint(Sketcher.Constraint("DistanceY", 0, 2, 0, 1, 19.0))
sketch20.addConstraint(Sketcher.Constraint("DistanceX", 0, 2, -1, 1, 8.0))
sketch20.addConstraint(Sketcher.Constraint("DistanceY", -1, 1, 0, 2, 37.0))
pad20 = doc.addObject("PartDesign::Pad", "Pad019")
body27.addObject(pad20)
pad20.Profile = sketch20
pad20.Length = 50
body28 = doc.addObject("PartDesign::Body", "Body027")

# Sketch on XY plane
sketch21 = doc.addObject("Sketcher::SketchObject", "Sketch020")
body28.addObject(sketch21)
sketch21.AttachmentSupport = (doc.getObject("XY_Plane027"), [""])
sketch21.MapMode = "FlatFace"
sketch21.AttachmentOffset = App.Placement(Vector(0, 0, 25), App.Rotation())
sketch21.addGeometry(Part.LineSegment(Vector(-13, 65, 0), Vector(-13, 31, 0)), False)
sketch21.addGeometry(Part.LineSegment(Vector(-13, 31, 0), Vector(13, 31, 0)), False)
sketch21.addGeometry(Part.LineSegment(Vector(13, 31, 0), Vector(13, 65, 0)), False)
sketch21.addGeometry(Part.LineSegment(Vector(13, 65, 0), Vector(-13, 65, 0)), False)
sketch21.addConstraint(Sketcher.Constraint("Coincident", 0, 2, 1, 1))
sketch21.addConstraint(Sketcher.Constraint("Coincident", 1, 2, 2, 1))
sketch21.addConstraint(Sketcher.Constraint("Coincident", 2, 2, 3, 1))
sketch21.addConstraint(Sketcher.Constraint("Coincident", 3, 2, 0, 1))
sketch21.addConstraint(Sketcher.Constraint("Vertical", 0))
sketch21.addConstraint(Sketcher.Constraint("Horizontal", 1))
sketch21.addConstraint(Sketcher.Constraint("Vertical", 2))
sketch21.addConstraint(Sketcher.Constraint("Horizontal", 3))
sketch21.addConstraint(Sketcher.Constraint("DistanceX", 1, 1, 1, 2, 26.0))
sketch21.addConstraint(Sketcher.Constraint("DistanceY", 0, 2, 0, 1, 34.0))
sketch21.addConstraint(Sketcher.Constraint("DistanceX", 0, 2, -1, 1, 13.0))
sketch21.addConstraint(Sketcher.Constraint("DistanceY", -1, 1, 0, 2, 31.0))
pad21 = doc.addObject("PartDesign::Pad", "Pad020")
body28.addObject(pad21)
pad21.Profile = sketch21
pad21.Length = 36
doc.recompute()

boolean20 = doc.addObject("PartDesign::Boolean", "Boolean019")
body28.addObject(boolean20)
boolean20.Type = "Cut"
boolean20.addObjects([body27])
doc.recompute()

boolean21 = doc.addObject("PartDesign::Boolean", "Boolean020")
body28.addObject(boolean21)
boolean21.Type = "Cut"
boolean21.addObjects([body26])
doc.recompute()

boolean22 = doc.addObject("PartDesign::Boolean", "Boolean021")
body28.addObject(boolean22)
boolean22.Type = "Cut"
boolean22.addObjects([body25])
doc.recompute()

boolean23 = doc.addObject("PartDesign::Boolean", "Boolean022")
body28.addObject(boolean23)
boolean23.Type = "Cut"
boolean23.addObjects([body24])
doc.recompute()

boolean24 = doc.addObject("PartDesign::Boolean", "Boolean023")
body28.addObject(boolean24)
boolean24.Type = "Cut"
boolean24.addObjects([body23])
doc.recompute()

boolean25 = doc.addObject("PartDesign::Boolean", "Boolean024")
body28.addObject(boolean25)
boolean25.Type = "Cut"
boolean25.addObjects([body19])
doc.recompute()

boolean26 = doc.addObject("PartDesign::Boolean", "Boolean025")
body28.addObject(boolean26)
boolean26.Type = "Cut"
boolean26.addObjects([body14])
doc.recompute()

boolean27 = doc.addObject("PartDesign::Boolean", "Boolean026")
body28.addObject(boolean27)
boolean27.Type = "Cut"
boolean27.addObjects([body9])
body29 = doc.addObject("PartDesign::Body", "Body028")
doc.recompute()

body28.Placement = App.Placement(Vector(0, 2, -55), App.Rotation(Vector(1, 0, 0), 180))
boolean28 = doc.addObject("PartDesign::Boolean", "Boolean027")
body29.addObject(boolean28)
boolean28.Type = "Fuse"
boolean28.addObjects([body28])

doc.recompute()
